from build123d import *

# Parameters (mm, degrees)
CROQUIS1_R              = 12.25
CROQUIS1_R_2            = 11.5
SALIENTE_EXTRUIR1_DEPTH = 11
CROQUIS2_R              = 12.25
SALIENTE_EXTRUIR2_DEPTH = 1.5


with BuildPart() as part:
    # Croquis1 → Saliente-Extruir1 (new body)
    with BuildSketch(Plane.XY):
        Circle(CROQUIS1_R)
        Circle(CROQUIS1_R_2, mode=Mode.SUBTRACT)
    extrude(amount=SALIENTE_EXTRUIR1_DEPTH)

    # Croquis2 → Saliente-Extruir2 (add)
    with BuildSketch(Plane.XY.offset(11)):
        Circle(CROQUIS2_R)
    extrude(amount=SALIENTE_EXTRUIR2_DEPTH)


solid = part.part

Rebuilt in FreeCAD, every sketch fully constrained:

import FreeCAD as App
import Part
import Sketcher
Q = App.Units.Quantity

doc = App.newDocument("Part")
params = doc.addObject("Spreadsheet::Sheet", "Params")
for row, (alias, value) in enumerate([
    ("sketch1_diameter", "23 mm"),
    ("sketch1_diameter2", "24.5 mm"),
    ("pad1_length", "11 mm"),
    ("sketch2_diameter", "24.5 mm"),
    ("pad2_length", "1.5 mm"),
], start=1):
    params.set(f"A{row}", alias)
    params.set(f"B{row}", "=" + value)
    params.setAlias(f"B{row}", alias)

body = doc.addObject("PartDesign::Body", "Body")

# Sketch on XY plane
sketch1 = body.newObject("Sketcher::SketchObject", "Sketch")
sketch1.AttachmentSupport = (doc.getObject("XY_Plane"), [""])
sketch1.MapMode = "FlatFace"
sketch1.addGeometry([
    Part.Circle(App.Vector(0, 0, 0), App.Vector(0, 0, 1), 12),
    Part.Circle(App.Vector(0, 0, 0), App.Vector(0, 0, 1), 12),
], False)
sketch1.addConstraint([
    Sketcher.Constraint("Coincident", 0, 3, -1, 1),
    Sketcher.Constraint("Coincident", 1, 3, -1, 1),
    Sketcher.Constraint("Diameter", 1, Q("23 mm")),
    Sketcher.Constraint("Diameter", 0, Q("24.5 mm")),
])
sketch1.setExpression("Constraints[2]", "Params.sketch1_diameter")
sketch1.setExpression("Constraints[3]", "Params.sketch1_diameter2")
pad1 = body.newObject("PartDesign::Pad", "Pad")
pad1.Profile = sketch1
pad1.setExpression("Length", "Params.pad1_length")

# Sketch on XY plane
sketch2 = body.newObject("Sketcher::SketchObject", "Sketch001")
sketch2.AttachmentSupport = (doc.getObject("XY_Plane"), [""])
sketch2.MapMode = "FlatFace"
sketch2.AttachmentOffset = App.Placement(App.Vector(0, 0, 11), App.Rotation())
sketch2.addGeometry(Part.Circle(App.Vector(0, 0, 0), App.Vector(0, 0, 1), 12), False)
sketch2.addConstraint([
    Sketcher.Constraint("Coincident", 0, 3, -1, 1),
    Sketcher.Constraint("Diameter", 0, Q("24.5 mm")),
])
sketch2.setExpression("Constraints[1]", "Params.sketch2_diameter")
pad2 = body.newObject("PartDesign::Pad", "Pad001")
pad2.Profile = sketch2
pad2.setExpression("Length", "Params.pad2_length")

doc.recompute()
